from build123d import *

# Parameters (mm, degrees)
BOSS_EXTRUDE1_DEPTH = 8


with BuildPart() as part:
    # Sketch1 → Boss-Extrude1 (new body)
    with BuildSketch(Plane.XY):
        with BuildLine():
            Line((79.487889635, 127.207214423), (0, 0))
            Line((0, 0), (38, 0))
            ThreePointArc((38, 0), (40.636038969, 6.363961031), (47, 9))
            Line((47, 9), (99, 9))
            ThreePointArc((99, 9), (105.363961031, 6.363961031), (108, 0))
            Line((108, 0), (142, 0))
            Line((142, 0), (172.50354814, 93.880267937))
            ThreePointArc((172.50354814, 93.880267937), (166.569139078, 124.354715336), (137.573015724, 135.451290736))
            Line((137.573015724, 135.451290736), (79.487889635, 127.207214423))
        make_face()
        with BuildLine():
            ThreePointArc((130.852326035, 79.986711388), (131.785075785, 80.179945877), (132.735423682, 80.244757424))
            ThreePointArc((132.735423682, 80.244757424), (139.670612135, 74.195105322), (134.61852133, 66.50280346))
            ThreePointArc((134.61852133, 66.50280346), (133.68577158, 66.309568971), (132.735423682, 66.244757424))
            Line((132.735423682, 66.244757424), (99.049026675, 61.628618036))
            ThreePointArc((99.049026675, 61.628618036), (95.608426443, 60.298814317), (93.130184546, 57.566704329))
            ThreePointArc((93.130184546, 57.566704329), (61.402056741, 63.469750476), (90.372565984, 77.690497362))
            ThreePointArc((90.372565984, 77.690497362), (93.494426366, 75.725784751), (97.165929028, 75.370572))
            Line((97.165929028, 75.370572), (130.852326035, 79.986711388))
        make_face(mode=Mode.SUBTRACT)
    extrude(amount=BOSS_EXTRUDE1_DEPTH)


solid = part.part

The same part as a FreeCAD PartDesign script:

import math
import FreeCAD as App
import Part
import Sketcher

V = App.Vector

doc = App.newDocument("Part")
body = doc.addObject("PartDesign::Body", "Body")

# Sketch on XY plane
sketch1 = body.newObject("Sketcher::SketchObject", "Sketch")
sketch1.AttachmentSupport = (doc.getObject("XY_Plane"), [""])
sketch1.MapMode = "FlatFace"
sketch1.addGeometry([
    Part.LineSegment(V(79.48789, 127.207214, 0), V(0, 0, 0)),  # 0
    Part.LineSegment(V(0, 0, 0), V(38, 0, 0)),  # 1
    Part.ArcOfCircle(Part.Circle(V(47, 0, 0), V(0, 0, 1), 9), math.radians(90), math.radians(180)),  # 2
    Part.LineSegment(V(47, 9, 0), V(99, 9, 0)),  # 3
    Part.ArcOfCircle(Part.Circle(V(99, 0, 0), V(0, 0, 1), 9), math.radians(0), math.radians(90)),  # 4
    Part.LineSegment(V(108, 0, 0), V(142, 0, 0)),  # 5
    Part.LineSegment(V(142, 0, 0), V(172.503548, 93.880268, 0)),  # 6
    Part.ArcOfCircle(Part.Circle(V(142.06974, 103.768812, 0), V(0, 0, 1), 32), math.radians(-18), math.radians(98.078089)),  # 7
    Part.LineSegment(V(137.573016, 135.451291, 0), V(79.48789, 127.207214, 0)),  # 8
    Part.LineSegment(V(97.165929, 75.370572, 0), V(130.852326, 79.986711, 0)),  # 9
    Part.ArcOfCircle(Part.Circle(V(132.735424, 73.244757, 0), V(0, 0, 1), 7), math.radians(90), math.radians(105.6056)),  # 10
    Part.ArcOfCircle(Part.Circle(V(132.735424, 73.244757, 0), V(0, 0, 1), 7), math.radians(-74.3944), math.radians(90)),  # 11
    Part.ArcOfCircle(Part.Circle(V(132.735424, 73.244757, 0), V(0, 0, 1), 7), math.radians(-90), math.radians(-74.3944)),  # 12
    Part.LineSegment(V(132.735424, 66.244757, 0), V(99.049027, 61.628618, 0)),  # 13
    Part.ArcOfCircle(Part.Circle(V(100.135139, 53.702688, 0), V(0, 0, 1), 8), math.radians(97.8028), math.radians(151.118349)),  # 14
    Part.ArcOfCircle(Part.Circle(V(78.244657, 65.777738, 0), V(0, 0, 1), 17), math.radians(44.487251), math.radians(331.118349)),  # 15
    Part.ArcOfCircle(Part.Circle(V(96.079817, 83.296502, 0), V(0, 0, 1), 8), math.radians(-135.512749), math.radians(-82.1972)),  # 16
], False)
sketch1.addConstraint([
    Sketcher.Constraint("Coincident", 0, 2, 1, 1),
    Sketcher.Constraint("Coincident", 1, 2, 2, 2),
    Sketcher.Constraint("Coincident", 2, 1, 3, 1),
    Sketcher.Constraint("Coincident", 3, 2, 4, 2),
    Sketcher.Constraint("Coincident", 4, 1, 5, 1),
    Sketcher.Constraint("Coincident", 5, 2, 6, 1),
    Sketcher.Constraint("Coincident", 6, 2, 7, 1),
    Sketcher.Constraint("Coincident", 7, 2, 8, 1),
    Sketcher.Constraint("Coincident", 8, 2, 0, 1),
    Sketcher.Constraint("Coincident", 9, 2, 10, 2),
    Sketcher.Constraint("Coincident", 10, 1, 11, 2),
    Sketcher.Constraint("Coincident", 11, 1, 12, 2),
    Sketcher.Constraint("Coincident", 12, 1, 13, 1),
    Sketcher.Constraint("Coincident", 13, 2, 14, 1),
    Sketcher.Constraint("Coincident", 14, 2, 15, 2),
    Sketcher.Constraint("Coincident", 15, 1, 16, 1),
    Sketcher.Constraint("Coincident", 16, 2, 9, 1),
    Sketcher.Constraint("Horizontal", 1),
    Sketcher.Constraint("Horizontal", 3),
    Sketcher.Constraint("Horizontal", 5),
    Sketcher.Constraint("Coincident", 0, 2, -1, 1),
    Sketcher.Constraint("Coincident", 11, 3, 10, 3),
    Sketcher.Constraint("Coincident", 12, 3, 10, 3),
    Sketcher.Constraint("PointOnObject", 2, 3, -1),
    Sketcher.Constraint("PointOnObject", 4, 3, -1),
    Sketcher.Constraint("PointOnObject", 4, 1, -1),
    Sketcher.Constraint("Radius", 2, 9.0),
    Sketcher.Constraint("Radius", 7, 32.0),
    Sketcher.Constraint("Radius", 10, 7.0),
    Sketcher.Constraint("Radius", 14, 8.0),
    Sketcher.Constraint("Radius", 15, 17.0),
    Sketcher.Constraint("Radius", 16, 8.0),
    Sketcher.Constraint("DistanceX", 1, 1, 1, 2, 38.0),
    Sketcher.Constraint("DistanceX", 3, 1, 3, 2, 52.0),
    Sketcher.Constraint("DistanceX", 5, 1, 5, 2, 34.0),
    Sketcher.Constraint("Distance", 0, 150.0),
    Sketcher.Constraint("DistanceX", -1, 1, 4, 3, 99.0),
    Sketcher.Constraint("DistanceX", -1, 1, 2, 1, 47.0),
    Sketcher.Constraint("DistanceY", -1, 1, 16, 3, 83.296502),
    Sketcher.Constraint("DistanceX", 14, 3, 7, 3, 41.934601),
    Sketcher.Constraint("DistanceY", 9, 2, 7, 3, 23.7821),
    Sketcher.Constraint("DistanceX", -1, 1, 7, 3, 142.06974),
    Sketcher.Constraint("DistanceY", -1, 1, 7, 3, 103.768812),
    Sketcher.Constraint("DistanceY", -1, 1, 14, 3, 53.702688),
    Sketcher.Constraint("DistanceY", -1, 1, 15, 3, 65.777738),
    Sketcher.Constraint("DistanceX", -1, 1, 6, 2, 172.503548),
    Sketcher.Constraint("DistanceY", -1, 1, 7, 2, 135.451291),
    Sketcher.Constraint("DistanceX", -1, 1, 8, 2, 79.48789),
    Sketcher.Constraint("DistanceX", -1, 1, 11, 1, 134.618521),
    Sketcher.Constraint("DistanceY", -1, 1, 13, 2, 61.628618),
    Sketcher.Constraint("DistanceX", -1, 1, 16, 2, 97.165929),
    Sketcher.Constraint("DistanceY", 14, 3, 12, 3, 19.542069),
    Sketcher.Constraint("DistanceX", 16, 3, 9, 2, 34.772509),
    Sketcher.Constraint("DistanceX", 14, 2, 12, 1, 39.605239),
    Sketcher.Constraint("DistanceX", 15, 1, 16, 3, 5.707251),
    Sketcher.Constraint("DistanceX", 15, 1, 14, 2, 2.757619),
    Sketcher.Constraint("DistanceX", -1, 1, 10, 1, 132.735424),
])
pad1 = body.newObject("PartDesign::Pad", "Pad")
pad1.Profile = sketch1
pad1.Length = 8

doc.recompute()
